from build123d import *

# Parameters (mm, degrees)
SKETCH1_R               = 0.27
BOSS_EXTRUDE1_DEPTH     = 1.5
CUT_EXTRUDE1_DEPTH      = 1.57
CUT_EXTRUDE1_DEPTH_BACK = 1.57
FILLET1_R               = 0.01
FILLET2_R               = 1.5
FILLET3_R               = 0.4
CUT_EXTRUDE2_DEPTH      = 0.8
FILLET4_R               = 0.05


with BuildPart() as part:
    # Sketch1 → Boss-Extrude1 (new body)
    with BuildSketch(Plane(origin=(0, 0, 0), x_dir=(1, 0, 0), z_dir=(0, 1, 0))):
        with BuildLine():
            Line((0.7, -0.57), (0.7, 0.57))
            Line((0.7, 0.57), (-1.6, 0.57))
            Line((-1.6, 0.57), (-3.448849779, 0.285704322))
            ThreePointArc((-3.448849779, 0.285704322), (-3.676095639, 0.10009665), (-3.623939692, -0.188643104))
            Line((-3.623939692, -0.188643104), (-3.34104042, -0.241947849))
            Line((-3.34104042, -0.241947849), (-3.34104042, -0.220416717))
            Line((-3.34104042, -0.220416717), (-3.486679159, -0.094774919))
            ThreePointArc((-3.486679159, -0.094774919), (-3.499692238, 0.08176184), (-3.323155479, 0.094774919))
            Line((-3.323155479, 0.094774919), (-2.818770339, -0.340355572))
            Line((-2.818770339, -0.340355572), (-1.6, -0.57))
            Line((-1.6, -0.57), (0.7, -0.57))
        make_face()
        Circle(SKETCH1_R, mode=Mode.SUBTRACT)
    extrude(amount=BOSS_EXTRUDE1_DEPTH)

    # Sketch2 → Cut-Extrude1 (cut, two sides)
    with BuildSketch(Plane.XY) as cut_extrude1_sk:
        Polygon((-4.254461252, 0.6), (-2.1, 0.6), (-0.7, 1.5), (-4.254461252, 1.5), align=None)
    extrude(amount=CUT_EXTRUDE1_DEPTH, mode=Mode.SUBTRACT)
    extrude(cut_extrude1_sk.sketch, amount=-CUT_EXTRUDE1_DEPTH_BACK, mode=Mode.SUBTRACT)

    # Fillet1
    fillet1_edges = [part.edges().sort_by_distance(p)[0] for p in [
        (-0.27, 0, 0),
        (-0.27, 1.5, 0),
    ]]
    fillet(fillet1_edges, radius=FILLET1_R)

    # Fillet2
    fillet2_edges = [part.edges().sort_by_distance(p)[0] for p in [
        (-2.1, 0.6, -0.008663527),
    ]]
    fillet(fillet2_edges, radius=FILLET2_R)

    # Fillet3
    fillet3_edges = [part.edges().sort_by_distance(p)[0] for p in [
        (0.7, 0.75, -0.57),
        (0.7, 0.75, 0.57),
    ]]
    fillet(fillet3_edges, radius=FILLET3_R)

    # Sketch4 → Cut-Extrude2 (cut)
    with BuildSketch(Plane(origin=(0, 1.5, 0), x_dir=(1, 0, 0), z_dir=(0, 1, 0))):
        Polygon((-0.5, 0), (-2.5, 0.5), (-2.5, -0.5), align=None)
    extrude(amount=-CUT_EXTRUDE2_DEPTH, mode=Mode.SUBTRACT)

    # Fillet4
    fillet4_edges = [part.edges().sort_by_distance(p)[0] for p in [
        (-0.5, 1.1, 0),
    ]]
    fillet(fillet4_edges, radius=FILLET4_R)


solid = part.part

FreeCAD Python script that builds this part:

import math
import FreeCAD as App
import Part
import Sketcher
from FreeCAD import Vector
Q = App.Units.Quantity


def edges_at(feature, points):
    """Names of the edges that pass closest to the given points."""
    edges = feature.Shape.Edges
    near = lambda p: min(range(len(edges)), key=lambda i: edges[i].distToShape(Part.Vertex(*p))[0])
    return sorted({f"Edge{near(p) + 1}" for p in points})

doc = App.newDocument("Part")
params = doc.addObject("Spreadsheet::Sheet", "Params")
for row, (alias, value) in enumerate([
    ("sketch1_diameter", "0.54 mm"),
    ("sketch1_width", "2.3 mm"),
    ("sketch1_height", "1.14 mm"),
    ("pad1_length", "1.5 mm"),
    ("sketch2_height", "0.9 mm"),
    ("fillet_radius", "0.01 mm"),
    ("fillet2_radius", "1.5 mm"),
    ("fillet3_radius", "0.4 mm"),
    ("sketch3_height", "1 mm"),
    ("pocket2_length", "0.8 mm"),
    ("fillet4_radius", "0.05 mm"),
], start=1):
    params.set(f"A{row}", alias)
    params.set(f"B{row}", "=" + value)
    params.setAlias(f"B{row}", alias)

body = doc.addObject("PartDesign::Body", "Body")

# Sketch on XZ plane
sketch1 = body.newObject("Sketcher::SketchObject", "Sketch")
sketch1.AttachmentSupport = (doc.getObject("XZ_Plane"), [""])
sketch1.MapMode = "FlatFace"
sketch1.addGeometry([
    Part.LineSegment(Vector(0.7, 0.57, 0), Vector(0.7, -0.57, 0)),  # 0
    Part.LineSegment(Vector(0.7, -0.57, 0), Vector(-1.6, -0.57, 0)),  # 1
    Part.LineSegment(Vector(-1.6, -0.57, 0), Vector(-3.449, -0.286, 0)),  # 2
    Part.ArcOfCircle(Part.Circle(Vector(-3.405, 0, 0), Vector(0, 0, 1), 0.289), math.radians(139), math.radians(261)),  # 3
    Part.LineSegment(Vector(-3.624, 0.189, 0), Vector(-3.341, 0.242, 0)),  # 4
    Part.LineSegment(Vector(-3.341, 0.242, 0), Vector(-3.341, 0.22, 0)),  # 5
    Part.LineSegment(Vector(-3.341, 0.22, 0), Vector(-3.487, 0.095, 0)),  # 6
    Part.ArcOfCircle(Part.Circle(Vector(-3.405, 0, 0), Vector(0, 0, 1), 0.125), math.radians(131), math.radians(311)),  # 7
    Part.LineSegment(Vector(-3.323, -0.095, 0), Vector(-2.819, 0.34, 0)),  # 8
    Part.LineSegment(Vector(-2.819, 0.34, 0), Vector(-1.6, 0.57, 0)),  # 9
    Part.LineSegment(Vector(-1.6, 0.57, 0), Vector(0.7, 0.57, 0)),  # 10
    Part.Circle(Vector(0, 0, 0), Vector(0, 0, 1), 0.27),  # 11
], False)
sketch1.addConstraint([
    Sketcher.Constraint("Coincident", 0, 2, 1, 1),
    Sketcher.Constraint("Coincident", 1, 2, 2, 1),
    Sketcher.Constraint("Tangent", 2, 2, 3, 2),
    Sketcher.Constraint("Coincident", 3, 1, 4, 1),
    Sketcher.Constraint("Coincident", 4, 2, 5, 1),
    Sketcher.Constraint("Coincident", 5, 2, 6, 1),
    Sketcher.Constraint("Tangent", 6, 2, 7, 1),
    Sketcher.Constraint("Tangent", 7, 2, 8, 1),
    Sketcher.Constraint("Coincident", 8, 2, 9, 1),
    Sketcher.Constraint("Coincident", 9, 2, 10, 1),
    Sketcher.Constraint("Coincident", 10, 2, 0, 1),
    Sketcher.Constraint("Vertical", 0),
    Sketcher.Constraint("Horizontal", 1),
    Sketcher.Constraint("Vertical", 5),
    Sketcher.Constraint("Horizontal", 10),
    Sketcher.Constraint("Coincident", 11, 3, -1, 1),
    Sketcher.Constraint("Coincident", 7, 3, 3, 3),
    Sketcher.Constraint("Symmetric", 1, 2, 9, 2, -1),
    Sketcher.Constraint("PointOnObject", 3, 3, -1),
    Sketcher.Constraint("Parallel", 6, 8),
    Sketcher.Constraint("Parallel", 4, 9),
    Sketcher.Constraint("Diameter", 11, Q("0.54 mm")),
    Sketcher.Constraint("DistanceX", 1, 2, 1, 1, Q("2.3 mm")),
    Sketcher.Constraint("DistanceY", 0, 2, 0, 1, Q("1.14 mm")),
    Sketcher.Constraint("DistanceX", -1, 1, 0, 2, Q("0.7 mm")),
    Sketcher.Constraint("Radius", 7, Q("0.125169 mm")),
    Sketcher.Constraint("Radius", 3, Q("0.289062 mm")),
    Sketcher.Constraint("DistanceY", 5, 2, 5, 1, Q("0.021531 mm")),
    Sketcher.Constraint("DistanceX", 3, 1, 4, 2, Q("0.282899 mm")),
    Sketcher.Constraint("Distance", 2, Q("1.87058 mm")),
    Sketcher.Constraint("Distance", 8, Q("0.66614 mm")),
    Sketcher.Constraint("DistanceX", 3, 1, -1, 1, Q("3.62394 mm")),
])
sketch1.setExpression("Constraints[21]", "Params.sketch1_diameter")
sketch1.setExpression("Constraints[22]", "Params.sketch1_width")
sketch1.setExpression("Constraints[23]", "Params.sketch1_height")
pad1 = body.newObject("PartDesign::Pad", "Pad")
pad1.Profile = sketch1
pad1.setExpression("Length", "Params.pad1_length")
pad1.Reversed = True

# Sketch on XY plane
sketch2 = body.newObject("Sketcher::SketchObject", "Sketch001")
sketch2.AttachmentSupport = (doc.getObject("XY_Plane"), [""])
sketch2.MapMode = "FlatFace"
sketch2.addGeometry([
    Part.LineSegment(Vector(-4.3, 0.6, 0), Vector(-2.1, 0.6, 0)),
    Part.LineSegment(Vector(-2.1, 0.6, 0), Vector(-0.7, 1.5, 0)),
    Part.LineSegment(Vector(-0.7, 1.5, 0), Vector(-4.3, 1.5, 0)),
    Part.LineSegment(Vector(-4.3, 1.5, 0), Vector(-4.3, 0.6, 0)),
], False)
sketch2.addConstraint([
    Sketcher.Constraint("Coincident", 0, 2, 1, 1),
    Sketcher.Constraint("Coincident", 1, 2, 2, 1),
    Sketcher.Constraint("Coincident", 2, 2, 3, 1),
    Sketcher.Constraint("Coincident", 3, 2, 0, 1),
    Sketcher.Constraint("Horizontal", 0),
    Sketcher.Constraint("Horizontal", 2),
    Sketcher.Constraint("Vertical", 3),
    Sketcher.Constraint("DistanceY", 3, 2, 3, 1, Q("0.9 mm")),
    Sketcher.Constraint("DistanceX", 0, 2, -1, 1, Q("2.1 mm")),
    Sketcher.Constraint("DistanceY", -1, 1, 0, 2, Q("0.6 mm")),
    Sketcher.Constraint("DistanceX", 1, 2, -1, 1, Q("0.7 mm")),
    Sketcher.Constraint("DistanceX", 0, 1, 0, 2, Q("2.154461 mm")),
])
sketch2.setExpression("Constraints[7]", "Params.sketch2_height")
pocket1 = body.newObject("PartDesign::Pocket", "Pocket")
pocket1.Profile = sketch2
pocket1.Type = "ThroughAll"
pocket1.Midplane = True
doc.recompute()

fillet = body.newObject("PartDesign::Fillet", "Fillet")
fillet.Base = (pocket1, edges_at(pocket1, [(-0.27, 0, 0), (-0.27, 1.5, 0)]))
fillet.setExpression("Radius", "Params.fillet_radius")
doc.recompute()

fillet2 = body.newObject("PartDesign::Fillet", "Fillet001")
fillet2.Base = (fillet, edges_at(fillet, [(-2.1, 0.6, -0.009)]))
fillet2.setExpression("Radius", "Params.fillet2_radius")
doc.recompute()

fillet3 = body.newObject("PartDesign::Fillet", "Fillet002")
fillet3.Base = (fillet2, edges_at(fillet2, [(0.7, 0.75, -0.57), (0.7, 0.75, 0.57)]))
fillet3.setExpression("Radius", "Params.fillet3_radius")

# Sketch on XZ plane
sketch3 = body.newObject("Sketcher::SketchObject", "Sketch002")
sketch3.AttachmentSupport = (doc.getObject("XZ_Plane"), [""])
sketch3.MapMode = "FlatFace"
sketch3.AttachmentOffset = App.Placement(Vector(0, 0, -1.5), App.Rotation())
sketch3.addGeometry([
    Part.LineSegment(Vector(-0.5, 0, 0), Vector(-2.5, -0.5, 0)),
    Part.LineSegment(Vector(-2.5, -0.5, 0), Vector(-2.5, 0.5, 0)),
    Part.LineSegment(Vector(-2.5, 0.5, 0), Vector(-0.5, 0, 0)),
], False)
sketch3.addConstraint([
    Sketcher.Constraint("Coincident", 0, 2, 1, 1),
    Sketcher.Constraint("Coincident", 1, 2, 2, 1),
    Sketcher.Constraint("Coincident", 2, 2, 0, 1),
    Sketcher.Constraint("Vertical", 1),
    Sketcher.Constraint("PointOnObject", 2, 2, -1),
    Sketcher.Constraint("Equal", 0, 2),
    Sketcher.Constraint("DistanceY", 1, 1, 1, 2, Q("1 mm")),
    Sketcher.Constraint("DistanceX", 0, 2, 2, 2, Q("2 mm")),
    Sketcher.Constraint("DistanceX", 0, 2, -1, 1, Q("2.5 mm")),
])
sketch3.setExpression("Constraints[6]", "Params.sketch3_height")
pocket2 = body.newObject("PartDesign::Pocket", "Pocket001")
pocket2.Profile = sketch3
pocket2.setExpression("Length", "Params.pocket2_length")
pocket2.Reversed = True
doc.recompute()

fillet4 = body.newObject("PartDesign::Fillet", "Fillet003")
fillet4.Base = (pocket2, edges_at(pocket2, [(-0.5, 1.1, 0)]))
fillet4.setExpression("Radius", "Params.fillet4_radius")

doc.recompute()
